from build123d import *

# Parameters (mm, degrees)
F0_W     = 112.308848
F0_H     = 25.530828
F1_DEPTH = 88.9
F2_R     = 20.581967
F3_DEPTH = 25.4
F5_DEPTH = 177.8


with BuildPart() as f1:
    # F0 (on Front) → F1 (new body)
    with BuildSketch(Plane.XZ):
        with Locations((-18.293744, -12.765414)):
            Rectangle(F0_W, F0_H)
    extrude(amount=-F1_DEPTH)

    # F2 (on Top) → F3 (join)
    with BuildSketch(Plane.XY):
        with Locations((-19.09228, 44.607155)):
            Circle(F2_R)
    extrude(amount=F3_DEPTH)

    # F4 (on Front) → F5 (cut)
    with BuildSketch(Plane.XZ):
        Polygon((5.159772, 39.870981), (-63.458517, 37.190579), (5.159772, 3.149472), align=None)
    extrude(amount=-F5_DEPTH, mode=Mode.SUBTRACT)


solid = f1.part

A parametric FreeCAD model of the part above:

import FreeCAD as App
import Part
import Sketcher
from FreeCAD import Vector
Q = App.Units.Quantity


def add_polygon(sketch, points):
    """Adds a closed chain of lines whose ends are joined by coincident constraints."""
    first, n = sketch.GeometryCount, len(points)
    for a, b in zip(points, points[1:] + points[:1]):
        sketch.addGeometry(Part.LineSegment(App.Vector(*a, 0), App.Vector(*b, 0)), False)
    for i in range(n):
        sketch.addConstraint(Sketcher.Constraint("Coincident", first + i, 2, first + (i + 1) % n, 1))

doc = App.newDocument("Part")
body = doc.addObject("PartDesign::Body", "Body")

# Sketch on XZ plane
sketch1 = body.newObject("Sketcher::SketchObject", "Sketch")
sketch1.AttachmentSupport = (doc.getObject("XZ_Plane"), [""])
sketch1.MapMode = "FlatFace"
add_polygon(sketch1, [(-74.448168, 0), (-74.448168, -25.530828), (37.86068, -25.530828), (37.86068, 0)])  # lines 0-3
sketch1.addConstraint([
    Sketcher.Constraint("Vertical", 0),
    Sketcher.Constraint("Horizontal", 1),
    Sketcher.Constraint("Vertical", 2),
    Sketcher.Constraint("Horizontal", 3),
    Sketcher.Constraint("PointOnObject", 2, 2, -1),
    Sketcher.Constraint("DistanceX", 1, 1, 1, 2, Q("112.308848 mm")),
    Sketcher.Constraint("DistanceY", 0, 2, 0, 1, Q("25.530828 mm")),
    Sketcher.Constraint("DistanceX", -1, 1, 1, 2, Q("37.86068 mm")),
])
pad1 = body.newObject("PartDesign::Pad", "Pad")
pad1.Profile = sketch1
pad1.Length = Q("3.5 in")
pad1.Reversed = True

# Sketch on XY plane
sketch2 = body.newObject("Sketcher::SketchObject", "Sketch001")
sketch2.AttachmentSupport = (doc.getObject("XY_Plane"), [""])
sketch2.MapMode = "FlatFace"
sketch2.addGeometry(Part.Circle(Vector(-19.09228, 44.607155, 0), Vector(0, 0, 1), 20.581967), False)
sketch2.addConstraint([
    Sketcher.Constraint("Diameter", 0, Q("41.163934 mm")),
    Sketcher.Constraint("DistanceX", 0, 3, -1, 1, Q("19.09228 mm")),
    Sketcher.Constraint("DistanceY", -1, 1, 0, 3, Q("44.607155 mm")),
])
pad2 = body.newObject("PartDesign::Pad", "Pad001")
pad2.Profile = sketch2
pad2.Length = Q("1 in")

# Sketch on XZ plane
sketch3 = body.newObject("Sketcher::SketchObject", "Sketch002")
sketch3.AttachmentSupport = (doc.getObject("XZ_Plane"), [""])
sketch3.MapMode = "FlatFace"
add_polygon(sketch3, [(5.159772, 39.870981), (-63.458517, 37.190579), (5.159772, 3.149472)])  # lines 0-2
sketch3.addConstraint([
    Sketcher.Constraint("Vertical", 2),
    Sketcher.Constraint("DistanceY", 2, 1, 2, 2, Q("36.721509 mm")),
    Sketcher.Constraint("Distance", 0, Q("68.670621 mm")),
    Sketcher.Constraint("DistanceY", -1, 1, 0, 2, Q("37.190579 mm")),
    Sketcher.Constraint("DistanceY", -1, 1, 1, 2, Q("3.149472 mm")),
    Sketcher.Constraint("DistanceX", 0, 2, -1, 1, Q("63.458517 mm")),
])
pocket1 = body.newObject("PartDesign::Pocket", "Pocket")
pocket1.Profile = sketch3
pocket1.Length = Q("7 in")

doc.recompute()
